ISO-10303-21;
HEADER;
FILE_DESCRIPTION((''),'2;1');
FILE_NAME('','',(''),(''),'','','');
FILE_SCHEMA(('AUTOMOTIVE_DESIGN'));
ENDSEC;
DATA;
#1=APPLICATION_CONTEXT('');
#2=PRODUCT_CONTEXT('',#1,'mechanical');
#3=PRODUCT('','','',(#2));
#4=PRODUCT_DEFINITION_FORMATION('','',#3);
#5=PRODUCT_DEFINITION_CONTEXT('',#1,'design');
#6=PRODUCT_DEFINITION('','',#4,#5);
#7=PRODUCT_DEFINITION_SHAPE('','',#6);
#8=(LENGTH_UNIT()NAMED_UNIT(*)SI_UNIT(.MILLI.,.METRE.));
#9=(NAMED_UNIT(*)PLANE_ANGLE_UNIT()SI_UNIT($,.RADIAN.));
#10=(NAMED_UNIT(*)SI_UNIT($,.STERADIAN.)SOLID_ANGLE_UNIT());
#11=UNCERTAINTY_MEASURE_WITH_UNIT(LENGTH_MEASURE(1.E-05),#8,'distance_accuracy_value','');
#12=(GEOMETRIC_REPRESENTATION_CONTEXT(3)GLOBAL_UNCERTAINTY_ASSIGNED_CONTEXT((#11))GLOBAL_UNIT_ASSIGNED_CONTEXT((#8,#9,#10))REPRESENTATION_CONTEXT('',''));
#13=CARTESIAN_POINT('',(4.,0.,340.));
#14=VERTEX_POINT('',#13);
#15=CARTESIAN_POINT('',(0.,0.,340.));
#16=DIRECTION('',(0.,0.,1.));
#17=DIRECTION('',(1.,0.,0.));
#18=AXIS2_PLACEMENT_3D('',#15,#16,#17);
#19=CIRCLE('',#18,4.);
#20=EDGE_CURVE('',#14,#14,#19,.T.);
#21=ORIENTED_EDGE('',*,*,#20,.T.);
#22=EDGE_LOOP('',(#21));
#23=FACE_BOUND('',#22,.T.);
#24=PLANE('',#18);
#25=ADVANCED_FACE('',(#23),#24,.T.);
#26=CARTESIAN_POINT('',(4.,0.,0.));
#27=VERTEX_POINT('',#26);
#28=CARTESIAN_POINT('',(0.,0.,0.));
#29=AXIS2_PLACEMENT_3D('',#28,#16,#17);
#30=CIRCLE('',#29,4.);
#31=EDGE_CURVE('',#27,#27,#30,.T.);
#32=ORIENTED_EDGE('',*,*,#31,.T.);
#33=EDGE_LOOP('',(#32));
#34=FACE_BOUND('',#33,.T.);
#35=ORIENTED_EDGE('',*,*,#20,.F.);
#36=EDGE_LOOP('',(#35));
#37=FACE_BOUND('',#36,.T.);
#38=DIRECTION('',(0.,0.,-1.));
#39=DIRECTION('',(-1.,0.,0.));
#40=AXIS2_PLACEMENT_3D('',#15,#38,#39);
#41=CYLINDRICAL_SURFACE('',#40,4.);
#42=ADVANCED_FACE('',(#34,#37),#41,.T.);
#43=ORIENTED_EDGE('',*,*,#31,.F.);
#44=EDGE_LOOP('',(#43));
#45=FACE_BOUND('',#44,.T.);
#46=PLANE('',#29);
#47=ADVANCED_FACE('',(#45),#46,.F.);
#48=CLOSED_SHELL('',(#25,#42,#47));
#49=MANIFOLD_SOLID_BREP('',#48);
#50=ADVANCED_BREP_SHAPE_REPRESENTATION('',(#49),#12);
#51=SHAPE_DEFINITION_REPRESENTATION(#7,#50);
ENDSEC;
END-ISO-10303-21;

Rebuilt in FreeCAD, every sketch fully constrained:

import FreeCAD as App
import Part
import Sketcher
from FreeCAD import Vector
Q = App.Units.Quantity

doc = App.newDocument("Part")
body = doc.addObject("PartDesign::Body", "Body")

sketch1 = doc.addObject("Sketcher::SketchObject", "Sketch")
body.addObject(sketch1)
sketch1.AttachmentSupport = (doc.XY_Plane, [""])
sketch1.MapMode = "FlatFace"
sketch1.addGeometry(Part.Circle(Vector(0, 0, 0), Vector(0, 0, 1), 4), False)
sketch1.addConstraint([
    Sketcher.Constraint("Coincident", 0, 3, -1, 1),
    Sketcher.Constraint("Diameter", 0, Q("8 mm")),
])
pad1 = doc.addObject("PartDesign::Pad", "Pad")
body.addObject(pad1)
pad1.Profile = sketch1
pad1.Length = 340

doc.recompute()
